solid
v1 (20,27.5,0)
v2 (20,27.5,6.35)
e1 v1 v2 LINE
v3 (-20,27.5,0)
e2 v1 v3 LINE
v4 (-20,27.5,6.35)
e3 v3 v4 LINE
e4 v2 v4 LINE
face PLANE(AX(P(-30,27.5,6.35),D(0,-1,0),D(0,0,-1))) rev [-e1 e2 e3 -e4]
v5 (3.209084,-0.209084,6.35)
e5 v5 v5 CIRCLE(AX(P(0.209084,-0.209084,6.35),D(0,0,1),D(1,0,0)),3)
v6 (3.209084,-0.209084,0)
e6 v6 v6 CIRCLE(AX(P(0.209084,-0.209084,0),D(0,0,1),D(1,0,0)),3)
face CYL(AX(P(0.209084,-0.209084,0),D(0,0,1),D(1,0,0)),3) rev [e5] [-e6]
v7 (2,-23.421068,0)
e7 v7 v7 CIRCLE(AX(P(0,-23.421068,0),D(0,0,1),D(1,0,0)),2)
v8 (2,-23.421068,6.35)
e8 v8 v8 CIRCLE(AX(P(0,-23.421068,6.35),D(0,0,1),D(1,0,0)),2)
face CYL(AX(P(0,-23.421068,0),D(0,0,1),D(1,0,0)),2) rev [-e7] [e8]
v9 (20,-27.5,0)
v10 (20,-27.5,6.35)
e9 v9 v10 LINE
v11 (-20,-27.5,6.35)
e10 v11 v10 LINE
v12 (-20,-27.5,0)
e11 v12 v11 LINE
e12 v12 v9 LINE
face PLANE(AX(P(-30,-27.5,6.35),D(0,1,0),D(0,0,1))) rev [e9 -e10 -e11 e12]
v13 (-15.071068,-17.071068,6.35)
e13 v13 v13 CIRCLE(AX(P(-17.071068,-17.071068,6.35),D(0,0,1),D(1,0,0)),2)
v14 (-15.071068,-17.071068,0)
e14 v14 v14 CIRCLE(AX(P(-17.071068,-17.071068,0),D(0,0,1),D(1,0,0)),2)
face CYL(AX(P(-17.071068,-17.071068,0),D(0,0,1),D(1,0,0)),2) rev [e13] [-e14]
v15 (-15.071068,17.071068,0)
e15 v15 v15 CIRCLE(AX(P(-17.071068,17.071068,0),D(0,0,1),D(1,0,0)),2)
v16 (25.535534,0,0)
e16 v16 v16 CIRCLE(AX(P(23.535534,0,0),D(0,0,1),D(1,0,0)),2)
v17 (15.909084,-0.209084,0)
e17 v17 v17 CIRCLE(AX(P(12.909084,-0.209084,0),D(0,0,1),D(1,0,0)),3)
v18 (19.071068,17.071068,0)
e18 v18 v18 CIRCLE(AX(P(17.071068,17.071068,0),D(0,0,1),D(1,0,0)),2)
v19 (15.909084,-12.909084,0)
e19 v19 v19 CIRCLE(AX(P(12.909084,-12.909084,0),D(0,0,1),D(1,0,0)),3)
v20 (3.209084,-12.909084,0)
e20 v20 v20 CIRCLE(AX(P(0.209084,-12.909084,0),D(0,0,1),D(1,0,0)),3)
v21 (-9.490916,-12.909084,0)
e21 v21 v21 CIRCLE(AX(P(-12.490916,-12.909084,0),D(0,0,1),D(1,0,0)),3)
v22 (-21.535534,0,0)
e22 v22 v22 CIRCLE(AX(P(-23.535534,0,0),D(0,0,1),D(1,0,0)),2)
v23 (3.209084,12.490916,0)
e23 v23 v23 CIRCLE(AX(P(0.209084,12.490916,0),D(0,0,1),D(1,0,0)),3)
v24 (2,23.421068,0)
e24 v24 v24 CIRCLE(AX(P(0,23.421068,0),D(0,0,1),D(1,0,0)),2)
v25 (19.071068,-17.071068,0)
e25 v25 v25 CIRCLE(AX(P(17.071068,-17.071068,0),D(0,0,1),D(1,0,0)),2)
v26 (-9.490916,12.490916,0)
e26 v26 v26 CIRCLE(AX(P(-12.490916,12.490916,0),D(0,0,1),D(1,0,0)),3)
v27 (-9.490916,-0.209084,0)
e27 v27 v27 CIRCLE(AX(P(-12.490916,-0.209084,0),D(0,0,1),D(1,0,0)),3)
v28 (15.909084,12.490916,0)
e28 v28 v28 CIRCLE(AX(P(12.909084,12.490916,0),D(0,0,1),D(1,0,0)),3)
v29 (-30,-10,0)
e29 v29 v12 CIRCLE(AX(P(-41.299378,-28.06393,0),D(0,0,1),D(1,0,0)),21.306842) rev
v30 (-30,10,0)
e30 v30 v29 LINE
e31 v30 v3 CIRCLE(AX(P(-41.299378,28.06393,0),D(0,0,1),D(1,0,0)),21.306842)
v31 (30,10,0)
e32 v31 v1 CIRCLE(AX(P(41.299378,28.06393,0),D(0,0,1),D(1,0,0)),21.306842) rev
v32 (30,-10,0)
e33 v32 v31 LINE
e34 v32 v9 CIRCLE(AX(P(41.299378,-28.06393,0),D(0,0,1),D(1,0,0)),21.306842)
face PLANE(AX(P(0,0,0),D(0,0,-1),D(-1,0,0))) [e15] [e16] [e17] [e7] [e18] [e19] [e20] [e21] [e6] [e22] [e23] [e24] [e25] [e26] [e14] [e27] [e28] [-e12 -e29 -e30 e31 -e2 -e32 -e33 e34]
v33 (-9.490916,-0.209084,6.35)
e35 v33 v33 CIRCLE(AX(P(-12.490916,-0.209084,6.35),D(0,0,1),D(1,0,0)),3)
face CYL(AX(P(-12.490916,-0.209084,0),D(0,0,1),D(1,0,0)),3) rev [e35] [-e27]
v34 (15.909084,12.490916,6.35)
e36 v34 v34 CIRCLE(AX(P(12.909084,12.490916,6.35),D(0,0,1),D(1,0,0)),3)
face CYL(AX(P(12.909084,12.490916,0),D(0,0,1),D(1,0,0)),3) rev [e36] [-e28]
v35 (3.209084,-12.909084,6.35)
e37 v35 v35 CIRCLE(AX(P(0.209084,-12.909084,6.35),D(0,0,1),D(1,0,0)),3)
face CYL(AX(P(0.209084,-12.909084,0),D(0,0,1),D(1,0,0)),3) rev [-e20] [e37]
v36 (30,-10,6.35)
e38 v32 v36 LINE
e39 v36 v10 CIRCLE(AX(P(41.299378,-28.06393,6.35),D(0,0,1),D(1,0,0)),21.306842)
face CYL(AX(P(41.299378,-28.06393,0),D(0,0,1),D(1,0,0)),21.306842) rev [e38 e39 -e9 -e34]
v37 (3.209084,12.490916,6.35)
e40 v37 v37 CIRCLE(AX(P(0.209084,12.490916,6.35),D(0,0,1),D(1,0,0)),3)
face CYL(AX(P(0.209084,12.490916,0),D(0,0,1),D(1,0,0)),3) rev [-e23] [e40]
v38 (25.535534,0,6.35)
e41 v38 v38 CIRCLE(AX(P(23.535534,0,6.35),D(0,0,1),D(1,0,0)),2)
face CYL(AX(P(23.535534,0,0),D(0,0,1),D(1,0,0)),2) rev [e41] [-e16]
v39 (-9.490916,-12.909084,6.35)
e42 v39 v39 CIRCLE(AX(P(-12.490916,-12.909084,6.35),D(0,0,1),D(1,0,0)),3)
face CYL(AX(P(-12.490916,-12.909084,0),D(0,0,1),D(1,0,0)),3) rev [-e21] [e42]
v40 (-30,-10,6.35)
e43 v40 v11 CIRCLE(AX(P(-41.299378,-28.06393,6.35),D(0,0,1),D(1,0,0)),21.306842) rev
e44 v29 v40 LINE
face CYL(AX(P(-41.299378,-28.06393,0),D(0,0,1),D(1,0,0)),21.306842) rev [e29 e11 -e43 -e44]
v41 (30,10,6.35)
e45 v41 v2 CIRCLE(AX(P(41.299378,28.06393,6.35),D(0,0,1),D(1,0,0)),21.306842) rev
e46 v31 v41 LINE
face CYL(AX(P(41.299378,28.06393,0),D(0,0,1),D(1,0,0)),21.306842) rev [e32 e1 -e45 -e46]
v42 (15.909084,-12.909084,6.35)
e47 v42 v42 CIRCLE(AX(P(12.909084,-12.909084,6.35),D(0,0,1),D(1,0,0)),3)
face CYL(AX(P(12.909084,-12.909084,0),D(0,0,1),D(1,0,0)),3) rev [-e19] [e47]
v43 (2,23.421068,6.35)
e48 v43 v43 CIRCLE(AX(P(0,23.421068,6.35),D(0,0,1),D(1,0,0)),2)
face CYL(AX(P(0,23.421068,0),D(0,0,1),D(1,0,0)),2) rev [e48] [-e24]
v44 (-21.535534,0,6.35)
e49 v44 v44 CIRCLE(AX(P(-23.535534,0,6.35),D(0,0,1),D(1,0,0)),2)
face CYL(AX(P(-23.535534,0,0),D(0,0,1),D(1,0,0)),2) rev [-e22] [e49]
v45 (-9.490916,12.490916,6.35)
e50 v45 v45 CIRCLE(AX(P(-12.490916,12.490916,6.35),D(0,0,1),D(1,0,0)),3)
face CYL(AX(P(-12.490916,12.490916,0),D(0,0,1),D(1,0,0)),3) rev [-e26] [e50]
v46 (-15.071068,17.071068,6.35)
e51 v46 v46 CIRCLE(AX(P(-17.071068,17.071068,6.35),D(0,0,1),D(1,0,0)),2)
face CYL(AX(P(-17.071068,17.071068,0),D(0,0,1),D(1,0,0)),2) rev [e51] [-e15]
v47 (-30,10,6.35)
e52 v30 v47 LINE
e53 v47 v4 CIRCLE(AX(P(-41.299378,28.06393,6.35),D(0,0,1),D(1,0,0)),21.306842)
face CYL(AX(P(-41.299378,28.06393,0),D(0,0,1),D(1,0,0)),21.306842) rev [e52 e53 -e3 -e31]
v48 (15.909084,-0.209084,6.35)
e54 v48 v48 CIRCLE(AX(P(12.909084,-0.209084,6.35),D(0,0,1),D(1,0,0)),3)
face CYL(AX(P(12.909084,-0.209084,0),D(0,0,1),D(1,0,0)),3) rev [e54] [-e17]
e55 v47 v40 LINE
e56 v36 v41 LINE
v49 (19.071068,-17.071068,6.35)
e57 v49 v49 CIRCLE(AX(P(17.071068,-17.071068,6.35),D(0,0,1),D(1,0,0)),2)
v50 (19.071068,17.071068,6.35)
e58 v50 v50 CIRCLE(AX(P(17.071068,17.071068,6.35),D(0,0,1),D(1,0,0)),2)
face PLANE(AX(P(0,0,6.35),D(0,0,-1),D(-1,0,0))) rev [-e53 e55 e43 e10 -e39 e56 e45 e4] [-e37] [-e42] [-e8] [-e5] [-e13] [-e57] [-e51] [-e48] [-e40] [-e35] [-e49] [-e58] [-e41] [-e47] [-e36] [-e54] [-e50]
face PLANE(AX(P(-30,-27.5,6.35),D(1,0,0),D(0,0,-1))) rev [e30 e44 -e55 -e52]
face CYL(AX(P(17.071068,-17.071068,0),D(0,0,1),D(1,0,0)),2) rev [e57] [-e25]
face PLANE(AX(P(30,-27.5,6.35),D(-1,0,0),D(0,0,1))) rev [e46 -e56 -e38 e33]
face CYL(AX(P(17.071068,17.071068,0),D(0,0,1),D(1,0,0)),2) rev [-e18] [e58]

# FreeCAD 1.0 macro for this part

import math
import FreeCAD as App
import Part
import Sketcher
Q = App.Units.Quantity

doc = App.newDocument("Part")
body = doc.addObject("PartDesign::Body", "Body")

# Sketch on XY plane
sketch1 = body.newObject("Sketcher::SketchObject", "Sketch")
sketch1.AttachmentSupport = (doc.getObject("XY_Plane"), [""])
sketch1.MapMode = "FlatFace"
sketch1.addGeometry([
    Part.LineSegment(App.Vector(-30, 28, 0), App.Vector(-30, -28, 0)),
    Part.LineSegment(App.Vector(-30, -28, 0), App.Vector(30, -28, 0)),
    Part.LineSegment(App.Vector(30, -28, 0), App.Vector(30, 28, 0)),
    Part.LineSegment(App.Vector(30, 28, 0), App.Vector(-30, 28, 0)),
], False)
sketch1.addConstraint([
    Sketcher.Constraint("Coincident", 0, 2, 1, 1),
    Sketcher.Constraint("Coincident", 1, 2, 2, 1),
    Sketcher.Constraint("Coincident", 2, 2, 3, 1),
    Sketcher.Constraint("Coincident", 3, 2, 0, 1),
    Sketcher.Constraint("Vertical", 0),
    Sketcher.Constraint("Horizontal", 1),
    Sketcher.Constraint("Vertical", 2),
    Sketcher.Constraint("Horizontal", 3),
    Sketcher.Constraint("Symmetric", 0, 2, 2, 2, -1, 1),
    Sketcher.Constraint("DistanceX", 1, 1, 1, 2, Q("60 mm")),
    Sketcher.Constraint("DistanceY", 0, 2, 0, 1, Q("55 mm")),
])
pad1 = body.newObject("PartDesign::Pad", "Pad")
pad1.Profile = sketch1
pad1.Length = 6.35

# Sketch on XY plane
sketch2 = body.newObject("Sketcher::SketchObject", "Sketch001")
sketch2.AttachmentSupport = (doc.getObject("XY_Plane"), [""])
sketch2.MapMode = "FlatFace"
sketch2.AttachmentOffset = App.Placement(App.Vector(0, 0, 6.35), App.Rotation())
sketch2.addGeometry([
    Part.LineSegment(App.Vector(-30, 27.5, 0), App.Vector(-30, 10, 0)),  # 0
    Part.ArcOfCircle(Part.Circle(App.Vector(-41.3, 28.1, 0), App.Vector(0, 0, 1), 21.3), math.radians(-58), math.radians(-2)),  # 1
    Part.LineSegment(App.Vector(-20, 27.5, 0), App.Vector(-30, 27.5, 0)),  # 2
    Part.ArcOfCircle(Part.Circle(App.Vector(-41.3, -28.1, 0), App.Vector(0, 0, 1), 21.3), math.radians(2), math.radians(58)),  # 3
    Part.LineSegment(App.Vector(-30, -10, 0), App.Vector(-30, -27.5, 0)),  # 4
    Part.LineSegment(App.Vector(-30, -27.5, 0), App.Vector(-20, -27.5, 0)),  # 5
    Part.ArcOfCircle(Part.Circle(App.Vector(41.3, -28.1, 0), App.Vector(0, 0, 1), 21.3), math.radians(122), math.radians(178)),  # 6
    Part.LineSegment(App.Vector(20, -27.5, 0), App.Vector(30, -27.5, 0)),  # 7
    Part.LineSegment(App.Vector(30, -27.5, 0), App.Vector(30, -10, 0)),  # 8
    Part.LineSegment(App.Vector(30, 27.5, 0), App.Vector(20, 27.5, 0)),  # 9
    Part.ArcOfCircle(Part.Circle(App.Vector(41.3, 28.1, 0), App.Vector(0, 0, 1), 21.3), math.radians(-178), math.radians(-122)),  # 10
    Part.LineSegment(App.Vector(30, 10, 0), App.Vector(30, 27.5, 0)),  # 11
    Part.Circle(App.Vector(17.1, 17.1, 0), App.Vector(0, 0, 1), 2),  # 12
    Part.Circle(App.Vector(23.5, 0, 0), App.Vector(0, 0, 1), 2),  # 13
    Part.Circle(App.Vector(17.1, -17.1, 0), App.Vector(0, 0, 1), 2),  # 14
    Part.Circle(App.Vector(-17.1, -17.1, 0), App.Vector(0, 0, 1), 2),  # 15
    Part.Circle(App.Vector(-23.5, 0, 0), App.Vector(0, 0, 1), 2),  # 16
    Part.Circle(App.Vector(-17.1, 17.1, 0), App.Vector(0, 0, 1), 2),  # 17
    Part.Circle(App.Vector(0, -23.4, 0), App.Vector(0, 0, 1), 2),  # 18
    Part.Circle(App.Vector(0, 23.4, 0), App.Vector(0, 0, 1), 2),  # 19
], False)
sketch2.addConstraint([
    Sketcher.Constraint("Coincident", 0, 2, 1, 1),
    Sketcher.Constraint("Coincident", 1, 2, 2, 1),
    Sketcher.Constraint("Coincident", 2, 2, 0, 1),
    Sketcher.Constraint("Coincident", 3, 2, 4, 1),
    Sketcher.Constraint("Coincident", 4, 2, 5, 1),
    Sketcher.Constraint("Coincident", 5, 2, 3, 1),
    Sketcher.Constraint("Coincident", 6, 2, 7, 1),
    Sketcher.Constraint("Coincident", 7, 2, 8, 1),
    Sketcher.Constraint("Coincident", 8, 2, 6, 1),
    Sketcher.Constraint("Coincident", 9, 2, 10, 1),
    Sketcher.Constraint("Coincident", 10, 2, 11, 1),
    Sketcher.Constraint("Coincident", 11, 2, 9, 1),
    Sketcher.Constraint("Vertical", 0),
    Sketcher.Constraint("Horizontal", 2),
    Sketcher.Constraint("Vertical", 4),
    Sketcher.Constraint("Horizontal", 5),
    Sketcher.Constraint("Horizontal", 7),
    Sketcher.Constraint("Vertical", 8),
    Sketcher.Constraint("Horizontal", 9),
    Sketcher.Constraint("Vertical", 11),
    Sketcher.Constraint("Equal", 1, 3),
    Sketcher.Constraint("Equal", 3, 6),
    Sketcher.Constraint("Equal", 6, 10),
    Sketcher.Constraint("Equal", 12, 13),
    Sketcher.Constraint("Equal", 13, 14),
    Sketcher.Constraint("Equal", 14, 15),
    Sketcher.Constraint("Equal", 15, 16),
    Sketcher.Constraint("Equal", 16, 17),
    Sketcher.Constraint("Equal", 17, 18),
    Sketcher.Constraint("Equal", 18, 19),
    Sketcher.Constraint("Symmetric", 1, 3, 6, 3, -1, 1),
    Sketcher.Constraint("Symmetric", 3, 3, 10, 3, -1, 1),
    Sketcher.Constraint("Symmetric", 12, 3, 15, 3, -1, 1),
    Sketcher.Constraint("Symmetric", 13, 3, 16, 3, -1, 1),
    Sketcher.Constraint("Symmetric", 14, 3, 17, 3, -1, 1),
    Sketcher.Constraint("Symmetric", 18, 3, 19, 3, -1, 1),
    Sketcher.Constraint("Symmetric", 2, 2, 7, 2, -1, 1),
    Sketcher.Constraint("Symmetric", 4, 2, 11, 2, -1, 1),
    Sketcher.Constraint("Symmetric", 3, 3, 6, 3, -2),
    Sketcher.Constraint("Symmetric", 14, 3, 15, 3, -2),
    Sketcher.Constraint("Symmetric", 4, 2, 7, 2, -2),
    Sketcher.Constraint("PointOnObject", 13, 3, -1),
    Sketcher.Constraint("PointOnObject", 18, 3, -2),
    Sketcher.Constraint("Diameter", 12, Q("4 mm")),
    Sketcher.Constraint("DistanceX", 2, 2, 2, 1, Q("10 mm")),
    Sketcher.Constraint("DistanceY", 0, 2, 0, 1, Q("17.5 mm")),
    Sketcher.Constraint("DistanceX", 0, 2, -1, 1, Q("30 mm")),
    Sketcher.Constraint("DistanceY", -1, 1, 0, 2, Q("10 mm")),
    Sketcher.Constraint("Radius", 1, Q("21.306842 mm")),
    Sketcher.Constraint("DistanceY", 18, 3, 14, 3, Q("6.35 mm")),
    Sketcher.Constraint("DistanceY", 6, 3, 12, 3, Q("45.134998 mm")),
    Sketcher.Constraint("DistanceX", 15, 3, 13, 3, Q("40.606602 mm")),
    Sketcher.Constraint("DistanceX", 12, 3, 10, 3, Q("24.22831 mm")),
])
pocket1 = body.newObject("PartDesign::Pocket", "Pocket")
pocket1.Profile = sketch2
pocket1.Length = 6.35

# Sketch on XY plane
sketch3 = body.newObject("Sketcher::SketchObject", "Sketch002")
sketch3.AttachmentSupport = (doc.getObject("XY_Plane"), [""])
sketch3.MapMode = "FlatFace"
sketch3.AttachmentOffset = App.Placement(App.Vector(0, 0, 6.35), App.Rotation())
sketch3.addGeometry(Part.Circle(App.Vector(-12.5, 12.5, 0), App.Vector(0, 0, 1), 3), False)
sketch3.addConstraint([
    Sketcher.Constraint("Diameter", 0, Q("6 mm")),
    Sketcher.Constraint("DistanceX", 0, 3, -1, 1, Q("12.490916 mm")),
    Sketcher.Constraint("DistanceY", -1, 1, 0, 3, Q("12.490916 mm")),
])
pocket2 = body.newObject("PartDesign::Pocket", "Pocket001")
pocket2.Profile = sketch3
pocket2.Type = "ThroughAll"
doc.recompute()

linearpattern = body.newObject("PartDesign::LinearPattern", "LinearPattern")
linearpattern.Originals = [pocket2]
linearpattern.Direction = (doc.getObject("X_Axis"), [""])
linearpattern.Mode = "offset"
linearpattern.Offset = 12.7
linearpattern.Occurrences = 3
body.Tip = linearpattern
doc.recompute()

linearpattern2 = body.newObject("PartDesign::LinearPattern", "LinearPattern001")
linearpattern2.Originals = [pocket2]
linearpattern2.Direction = (doc.getObject("Y_Axis"), [""])
linearpattern2.Mode = "offset"
linearpattern2.Offset = 12.7
linearpattern2.Occurrences = 3
linearpattern2.Reversed = True
body.Tip = linearpattern2

# Sketch on XY plane
sketch4 = body.newObject("Sketcher::SketchObject", "Sketch003")
sketch4.AttachmentSupport = (doc.getObject("XY_Plane"), [""])
sketch4.MapMode = "FlatFace"
sketch4.AttachmentOffset = App.Placement(App.Vector(0, 0, 6.35), App.Rotation())
sketch4.addGeometry(Part.Circle(App.Vector(0.2, -0.2, 0), App.Vector(0, 0, 1), 3), False)
sketch4.addConstraint([
    Sketcher.Constraint("Diameter", 0, Q("6 mm")),
    Sketcher.Constraint("DistanceX", -1, 1, 0, 3, Q("0.209084 mm")),
    Sketcher.Constraint("DistanceY", 0, 3, -1, 1, Q("0.209084 mm")),
])
pocket3 = body.newObject("PartDesign::Pocket", "Pocket002")
pocket3.Profile = sketch4
pocket3.Type = "ThroughAll"

# Sketch on XY plane
sketch5 = body.newObject("Sketcher::SketchObject", "Sketch004")
sketch5.AttachmentSupport = (doc.getObject("XY_Plane"), [""])
sketch5.MapMode = "FlatFace"
sketch5.AttachmentOffset = App.Placement(App.Vector(0, 0, 6.35), App.Rotation())
sketch5.addGeometry(Part.Circle(App.Vector(0.2, -12.9, 0), App.Vector(0, 0, 1), 3), False)
sketch5.addConstraint([
    Sketcher.Constraint("Diameter", 0, Q("6 mm")),
    Sketcher.Constraint("DistanceX", -1, 1, 0, 3, Q("0.209084 mm")),
    Sketcher.Constraint("DistanceY", 0, 3, -1, 1, Q("12.909084 mm")),
])
pocket4 = body.newObject("PartDesign::Pocket", "Pocket003")
pocket4.Profile = sketch5
pocket4.Type = "ThroughAll"

# Sketch on XY plane
sketch6 = body.newObject("Sketcher::SketchObject", "Sketch005")
sketch6.AttachmentSupport = (doc.getObject("XY_Plane"), [""])
sketch6.MapMode = "FlatFace"
sketch6.AttachmentOffset = App.Placement(App.Vector(0, 0, 6.35), App.Rotation())
sketch6.addGeometry(Part.Circle(App.Vector(12.9, -0.2, 0), App.Vector(0, 0, 1), 3), False)
sketch6.addConstraint([
    Sketcher.Constraint("Diameter", 0, Q("6 mm")),
    Sketcher.Constraint("DistanceX", -1, 1, 0, 3, Q("12.909084 mm")),
    Sketcher.Constraint("DistanceY", 0, 3, -1, 1, Q("0.209084 mm")),
])
pocket5 = body.newObject("PartDesign::Pocket", "Pocket004")
pocket5.Profile = sketch6
pocket5.Type = "ThroughAll"

# Sketch on XY plane
sketch7 = body.newObject("Sketcher::SketchObject", "Sketch006")
sketch7.AttachmentSupport = (doc.getObject("XY_Plane"), [""])
sketch7.MapMode = "FlatFace"
sketch7.AttachmentOffset = App.Placement(App.Vector(0, 0, 6.35), App.Rotation())
sketch7.addGeometry(Part.Circle(App.Vector(12.9, -12.9, 0), App.Vector(0, 0, 1), 3), False)
sketch7.addConstraint([
    Sketcher.Constraint("Diameter", 0, Q("6 mm")),
    Sketcher.Constraint("DistanceX", -1, 1, 0, 3, Q("12.909084 mm")),
    Sketcher.Constraint("DistanceY", 0, 3, -1, 1, Q("12.909084 mm")),
])
pocket6 = body.newObject("PartDesign::Pocket", "Pocket005")
pocket6.Profile = sketch7
pocket6.Type = "ThroughAll"

doc.recompute()
